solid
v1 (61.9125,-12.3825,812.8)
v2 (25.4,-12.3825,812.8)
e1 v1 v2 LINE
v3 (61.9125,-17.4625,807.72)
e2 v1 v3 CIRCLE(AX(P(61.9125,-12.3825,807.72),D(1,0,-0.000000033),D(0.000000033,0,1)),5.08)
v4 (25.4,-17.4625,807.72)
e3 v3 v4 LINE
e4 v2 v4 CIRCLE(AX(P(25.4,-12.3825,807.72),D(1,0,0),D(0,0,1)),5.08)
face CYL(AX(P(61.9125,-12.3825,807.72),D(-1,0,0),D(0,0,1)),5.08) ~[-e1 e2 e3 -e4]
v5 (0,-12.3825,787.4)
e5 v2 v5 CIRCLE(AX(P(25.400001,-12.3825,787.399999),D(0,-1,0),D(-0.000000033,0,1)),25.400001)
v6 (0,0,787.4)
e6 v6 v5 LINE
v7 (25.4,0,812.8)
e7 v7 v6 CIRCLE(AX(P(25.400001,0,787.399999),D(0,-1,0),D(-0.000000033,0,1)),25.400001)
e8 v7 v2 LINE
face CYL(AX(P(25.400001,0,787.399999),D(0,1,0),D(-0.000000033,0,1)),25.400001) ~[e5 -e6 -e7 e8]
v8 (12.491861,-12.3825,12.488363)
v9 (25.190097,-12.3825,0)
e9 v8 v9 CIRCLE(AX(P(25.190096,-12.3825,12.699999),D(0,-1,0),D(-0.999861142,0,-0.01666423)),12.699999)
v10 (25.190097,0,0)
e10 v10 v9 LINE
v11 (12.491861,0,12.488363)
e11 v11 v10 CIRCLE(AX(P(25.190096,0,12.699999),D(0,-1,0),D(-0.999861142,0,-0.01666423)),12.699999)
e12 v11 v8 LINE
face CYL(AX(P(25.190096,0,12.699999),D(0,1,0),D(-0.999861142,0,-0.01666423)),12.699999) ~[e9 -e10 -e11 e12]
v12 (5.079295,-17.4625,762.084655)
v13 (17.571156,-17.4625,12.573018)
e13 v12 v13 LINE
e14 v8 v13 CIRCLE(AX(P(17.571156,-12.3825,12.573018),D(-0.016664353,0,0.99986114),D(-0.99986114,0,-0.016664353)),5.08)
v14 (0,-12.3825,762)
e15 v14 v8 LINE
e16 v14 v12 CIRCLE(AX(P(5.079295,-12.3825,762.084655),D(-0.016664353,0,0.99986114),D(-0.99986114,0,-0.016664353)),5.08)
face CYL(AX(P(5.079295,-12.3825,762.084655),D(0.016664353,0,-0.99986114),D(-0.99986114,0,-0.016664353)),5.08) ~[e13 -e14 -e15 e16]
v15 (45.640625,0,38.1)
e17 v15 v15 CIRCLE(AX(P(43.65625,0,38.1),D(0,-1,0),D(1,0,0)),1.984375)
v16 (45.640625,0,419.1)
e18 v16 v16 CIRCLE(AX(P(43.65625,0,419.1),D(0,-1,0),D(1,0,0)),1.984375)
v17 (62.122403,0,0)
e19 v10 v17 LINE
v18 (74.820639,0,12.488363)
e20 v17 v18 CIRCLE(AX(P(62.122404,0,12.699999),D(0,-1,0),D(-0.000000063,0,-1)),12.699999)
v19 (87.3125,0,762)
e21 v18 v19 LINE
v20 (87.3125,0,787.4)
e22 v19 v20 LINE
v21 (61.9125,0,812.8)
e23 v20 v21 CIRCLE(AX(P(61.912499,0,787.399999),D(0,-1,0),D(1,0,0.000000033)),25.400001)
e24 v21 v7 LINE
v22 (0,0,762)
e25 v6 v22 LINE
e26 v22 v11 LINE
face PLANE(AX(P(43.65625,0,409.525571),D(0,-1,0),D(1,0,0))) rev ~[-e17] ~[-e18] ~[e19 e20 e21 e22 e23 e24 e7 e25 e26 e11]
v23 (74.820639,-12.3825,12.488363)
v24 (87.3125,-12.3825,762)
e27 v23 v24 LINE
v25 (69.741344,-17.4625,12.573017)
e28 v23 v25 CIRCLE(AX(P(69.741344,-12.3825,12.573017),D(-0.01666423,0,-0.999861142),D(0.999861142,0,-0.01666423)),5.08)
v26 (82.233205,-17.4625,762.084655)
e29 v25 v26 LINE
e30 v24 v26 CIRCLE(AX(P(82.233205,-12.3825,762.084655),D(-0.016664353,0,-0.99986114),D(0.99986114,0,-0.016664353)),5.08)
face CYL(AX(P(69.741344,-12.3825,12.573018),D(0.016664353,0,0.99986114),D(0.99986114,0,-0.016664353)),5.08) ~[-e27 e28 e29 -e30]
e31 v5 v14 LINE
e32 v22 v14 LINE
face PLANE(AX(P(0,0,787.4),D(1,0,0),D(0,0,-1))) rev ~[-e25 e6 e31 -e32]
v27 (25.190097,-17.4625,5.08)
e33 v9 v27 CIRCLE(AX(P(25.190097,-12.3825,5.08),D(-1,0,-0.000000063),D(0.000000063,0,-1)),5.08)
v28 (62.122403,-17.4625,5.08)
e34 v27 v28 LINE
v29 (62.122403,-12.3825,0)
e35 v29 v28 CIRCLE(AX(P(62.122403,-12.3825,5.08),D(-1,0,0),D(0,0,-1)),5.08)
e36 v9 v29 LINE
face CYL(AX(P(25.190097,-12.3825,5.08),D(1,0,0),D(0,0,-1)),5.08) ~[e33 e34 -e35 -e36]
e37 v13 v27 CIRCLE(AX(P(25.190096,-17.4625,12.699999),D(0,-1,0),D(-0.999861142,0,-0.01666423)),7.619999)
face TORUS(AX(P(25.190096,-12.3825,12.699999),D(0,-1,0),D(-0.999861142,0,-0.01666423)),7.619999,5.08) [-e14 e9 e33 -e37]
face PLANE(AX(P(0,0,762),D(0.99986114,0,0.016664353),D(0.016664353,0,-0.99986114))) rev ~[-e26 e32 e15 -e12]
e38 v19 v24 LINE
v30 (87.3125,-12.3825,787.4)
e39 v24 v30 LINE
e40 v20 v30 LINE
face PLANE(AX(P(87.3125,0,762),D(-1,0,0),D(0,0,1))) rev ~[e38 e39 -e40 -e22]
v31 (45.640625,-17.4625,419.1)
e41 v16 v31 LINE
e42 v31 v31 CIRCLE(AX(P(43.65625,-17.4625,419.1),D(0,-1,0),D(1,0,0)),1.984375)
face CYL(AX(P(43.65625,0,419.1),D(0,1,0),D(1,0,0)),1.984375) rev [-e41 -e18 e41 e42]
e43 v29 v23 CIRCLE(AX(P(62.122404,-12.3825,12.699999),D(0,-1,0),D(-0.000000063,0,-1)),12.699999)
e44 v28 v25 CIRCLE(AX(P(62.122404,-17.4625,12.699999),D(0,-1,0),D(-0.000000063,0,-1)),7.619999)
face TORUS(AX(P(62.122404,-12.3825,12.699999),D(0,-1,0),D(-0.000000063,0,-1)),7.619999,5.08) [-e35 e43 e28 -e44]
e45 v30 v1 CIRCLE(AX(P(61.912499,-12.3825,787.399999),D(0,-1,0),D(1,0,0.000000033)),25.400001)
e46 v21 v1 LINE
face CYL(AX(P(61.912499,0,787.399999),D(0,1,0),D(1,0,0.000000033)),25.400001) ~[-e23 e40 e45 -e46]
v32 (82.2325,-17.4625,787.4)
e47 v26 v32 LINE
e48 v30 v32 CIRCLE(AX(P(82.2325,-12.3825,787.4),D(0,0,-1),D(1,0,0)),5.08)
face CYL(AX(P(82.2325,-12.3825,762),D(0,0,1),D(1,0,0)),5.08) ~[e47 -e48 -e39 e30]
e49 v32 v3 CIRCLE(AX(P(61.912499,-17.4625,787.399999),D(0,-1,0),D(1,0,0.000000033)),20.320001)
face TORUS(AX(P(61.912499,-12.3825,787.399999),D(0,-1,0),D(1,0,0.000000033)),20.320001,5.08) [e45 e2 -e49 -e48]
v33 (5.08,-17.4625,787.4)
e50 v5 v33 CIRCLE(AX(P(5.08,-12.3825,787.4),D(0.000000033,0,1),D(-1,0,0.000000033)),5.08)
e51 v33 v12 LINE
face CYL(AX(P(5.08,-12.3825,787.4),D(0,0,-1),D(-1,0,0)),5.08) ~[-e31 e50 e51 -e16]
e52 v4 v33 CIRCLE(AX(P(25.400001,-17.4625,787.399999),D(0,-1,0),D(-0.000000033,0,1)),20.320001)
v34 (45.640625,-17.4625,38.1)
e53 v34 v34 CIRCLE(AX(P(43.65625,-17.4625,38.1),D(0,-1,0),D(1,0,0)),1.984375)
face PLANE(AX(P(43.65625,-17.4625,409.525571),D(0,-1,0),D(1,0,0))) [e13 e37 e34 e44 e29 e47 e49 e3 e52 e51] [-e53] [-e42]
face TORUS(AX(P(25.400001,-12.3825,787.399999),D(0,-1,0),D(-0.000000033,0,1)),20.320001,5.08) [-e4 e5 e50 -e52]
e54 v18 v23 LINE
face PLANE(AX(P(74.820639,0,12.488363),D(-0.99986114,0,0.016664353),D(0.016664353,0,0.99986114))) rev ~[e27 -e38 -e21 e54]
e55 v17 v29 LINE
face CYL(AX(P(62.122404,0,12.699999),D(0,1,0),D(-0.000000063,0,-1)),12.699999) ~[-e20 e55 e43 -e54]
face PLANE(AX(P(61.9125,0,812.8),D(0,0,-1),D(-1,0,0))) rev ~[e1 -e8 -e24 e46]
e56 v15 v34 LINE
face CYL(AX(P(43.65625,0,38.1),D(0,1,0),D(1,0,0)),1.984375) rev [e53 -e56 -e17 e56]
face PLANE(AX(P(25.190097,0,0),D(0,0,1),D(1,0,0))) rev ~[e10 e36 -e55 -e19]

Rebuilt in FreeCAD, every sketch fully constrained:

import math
import FreeCAD as App
import Part
import Sketcher
from FreeCAD import Vector
Q = App.Units.Quantity


def edges_at(feature, points):
    """Names of the edges that pass closest to the given points."""
    edges = feature.Shape.Edges
    near = lambda p: min(range(len(edges)), key=lambda i: edges[i].distToShape(Part.Vertex(*p))[0])
    return sorted({f"Edge{near(p) + 1}" for p in points})

doc = App.newDocument("Part")
body = doc.addObject("PartDesign::Body", "Body")

# Sketch on XZ plane
sketch1 = body.newObject("Sketcher::SketchObject", "Sketch")
sketch1.AttachmentSupport = (doc.getObject("XZ_Plane"), [""])
sketch1.MapMode = "FlatFace"
sketch1.addGeometry([
    Part.LineSegment(Vector(61.9125, 812.8, 0), Vector(25.4, 812.8, 0)),  # 0
    Part.ArcOfCircle(Part.Circle(Vector(25.400001, 787.399999, 0), Vector(0, 0, 1), 25.400001), math.radians(90.000002), math.radians(179.999998)),  # 1
    Part.LineSegment(Vector(0, 787.4, 0), Vector(0, 762, 0)),  # 2
    Part.LineSegment(Vector(0, 762, 0), Vector(12.491861, 12.488363, 0)),  # 3
    Part.ArcOfCircle(Part.Circle(Vector(25.190096, 12.699999, 0), Vector(0, 0, 1), 12.699999), math.radians(-179.045166), math.radians(-89.999996)),  # 4
    Part.LineSegment(Vector(25.190097, 0, 0), Vector(62.122403, 0, 0)),  # 5
    Part.ArcOfCircle(Part.Circle(Vector(62.122404, 12.699999, 0), Vector(0, 0, 1), 12.699999), math.radians(-90.000004), math.radians(-0.954834)),  # 6
    Part.LineSegment(Vector(74.820639, 12.488363, 0), Vector(87.3125, 762, 0)),  # 7
    Part.LineSegment(Vector(87.3125, 762, 0), Vector(87.3125, 787.4, 0)),  # 8
    Part.ArcOfCircle(Part.Circle(Vector(61.912499, 787.399999, 0), Vector(0, 0, 1), 25.400001), math.radians(0.000002), math.radians(89.999998)),  # 9
    Part.Circle(Vector(43.65625, 38.1, 0), Vector(0, 0, 1), 1.984375),  # 10
    Part.Circle(Vector(43.65625, 419.1, 0), Vector(0, 0, 1), 1.984375),  # 11
], False)
sketch1.addConstraint([
    Sketcher.Constraint("Coincident", 0, 2, 1, 1),
    Sketcher.Constraint("Coincident", 1, 2, 2, 1),
    Sketcher.Constraint("Coincident", 2, 2, 3, 1),
    Sketcher.Constraint("Coincident", 3, 2, 4, 1),
    Sketcher.Constraint("Coincident", 4, 2, 5, 1),
    Sketcher.Constraint("Coincident", 5, 2, 6, 1),
    Sketcher.Constraint("Coincident", 6, 2, 7, 1),
    Sketcher.Constraint("Coincident", 7, 2, 8, 1),
    Sketcher.Constraint("Coincident", 8, 2, 9, 1),
    Sketcher.Constraint("Coincident", 9, 2, 0, 1),
    Sketcher.Constraint("Horizontal", 0),
    Sketcher.Constraint("Vertical", 2),
    Sketcher.Constraint("Horizontal", 5),
    Sketcher.Constraint("Vertical", 8),
    Sketcher.Constraint("PointOnObject", 1, 2, -2),
    Sketcher.Constraint("PointOnObject", 4, 2, -1),
    Sketcher.Constraint("Radius", 1, Q("1 in")),
    Sketcher.Constraint("Radius", 9, Q("1 in")),
    Sketcher.Constraint("Radius", 4, Q("0.4999999 in")),
    Sketcher.Constraint("Radius", 6, Q("0.4999999 in")),
    Sketcher.Constraint("DistanceY", 2, 2, 2, 1, Q("1 in")),
    Sketcher.Constraint("DistanceY", 8, 1, 8, 2, Q("1 in")),
    Sketcher.Constraint("Diameter", 10, Q("0.15625 in")),
    Sketcher.Constraint("Diameter", 11, Q("0.15625 in")),
    Sketcher.Constraint("DistanceY", -1, 1, 1, 3, Q("31 in")),
    Sketcher.Constraint("DistanceX", -1, 1, 0, 2, Q("1 in")),
    Sketcher.Constraint("DistanceY", -1, 1, 1, 2, Q("31 in")),
    Sketcher.Constraint("DistanceY", -1, 1, 7, 2, Q("30 in")),
    Sketcher.Constraint("DistanceY", 4, 3, 10, 3, Q("1.0000001 in")),
    Sketcher.Constraint("DistanceY", 10, 3, 11, 3, Q("15 in")),
    Sketcher.Constraint("DistanceX", 9, 2, 8, 2, Q("1 in")),
    Sketcher.Constraint("DistanceX", 0, 2, 0, 1, Q("1.4375 in")),
    Sketcher.Constraint("DistanceX", -1, 1, 10, 3, Q("1.71875 in")),
    Sketcher.Constraint("DistanceX", -1, 1, 11, 3, Q("1.71875 in")),
    Sketcher.Constraint("Distance", 3, 749.615729),
    Sketcher.Constraint("Distance", 7, 749.615729),
    Sketcher.Constraint("DistanceX", 5, 1, 5, 2, 36.932306),
    Sketcher.Constraint("DistanceX", -1, 1, 3, 2, 12.491861),
    Sketcher.Constraint("DistanceX", -1, 1, 6, 2, 74.820639),
    Sketcher.Constraint("DistanceX", 3, 2, 5, 2, 49.630542),
])
pad1 = body.newObject("PartDesign::Pad", "Pad")
pad1.Profile = sketch1
pad1.Length = Q("0.6875 in")
doc.recompute()

fillet = body.newObject("PartDesign::Fillet", "Fillet")
fillet.Base = (pad1, edges_at(pad1, [(6.246, -17.462, 387.244), (7.439, -17.462, 805.361)]))
fillet.Radius = Q("0.2 in")

doc.recompute()
